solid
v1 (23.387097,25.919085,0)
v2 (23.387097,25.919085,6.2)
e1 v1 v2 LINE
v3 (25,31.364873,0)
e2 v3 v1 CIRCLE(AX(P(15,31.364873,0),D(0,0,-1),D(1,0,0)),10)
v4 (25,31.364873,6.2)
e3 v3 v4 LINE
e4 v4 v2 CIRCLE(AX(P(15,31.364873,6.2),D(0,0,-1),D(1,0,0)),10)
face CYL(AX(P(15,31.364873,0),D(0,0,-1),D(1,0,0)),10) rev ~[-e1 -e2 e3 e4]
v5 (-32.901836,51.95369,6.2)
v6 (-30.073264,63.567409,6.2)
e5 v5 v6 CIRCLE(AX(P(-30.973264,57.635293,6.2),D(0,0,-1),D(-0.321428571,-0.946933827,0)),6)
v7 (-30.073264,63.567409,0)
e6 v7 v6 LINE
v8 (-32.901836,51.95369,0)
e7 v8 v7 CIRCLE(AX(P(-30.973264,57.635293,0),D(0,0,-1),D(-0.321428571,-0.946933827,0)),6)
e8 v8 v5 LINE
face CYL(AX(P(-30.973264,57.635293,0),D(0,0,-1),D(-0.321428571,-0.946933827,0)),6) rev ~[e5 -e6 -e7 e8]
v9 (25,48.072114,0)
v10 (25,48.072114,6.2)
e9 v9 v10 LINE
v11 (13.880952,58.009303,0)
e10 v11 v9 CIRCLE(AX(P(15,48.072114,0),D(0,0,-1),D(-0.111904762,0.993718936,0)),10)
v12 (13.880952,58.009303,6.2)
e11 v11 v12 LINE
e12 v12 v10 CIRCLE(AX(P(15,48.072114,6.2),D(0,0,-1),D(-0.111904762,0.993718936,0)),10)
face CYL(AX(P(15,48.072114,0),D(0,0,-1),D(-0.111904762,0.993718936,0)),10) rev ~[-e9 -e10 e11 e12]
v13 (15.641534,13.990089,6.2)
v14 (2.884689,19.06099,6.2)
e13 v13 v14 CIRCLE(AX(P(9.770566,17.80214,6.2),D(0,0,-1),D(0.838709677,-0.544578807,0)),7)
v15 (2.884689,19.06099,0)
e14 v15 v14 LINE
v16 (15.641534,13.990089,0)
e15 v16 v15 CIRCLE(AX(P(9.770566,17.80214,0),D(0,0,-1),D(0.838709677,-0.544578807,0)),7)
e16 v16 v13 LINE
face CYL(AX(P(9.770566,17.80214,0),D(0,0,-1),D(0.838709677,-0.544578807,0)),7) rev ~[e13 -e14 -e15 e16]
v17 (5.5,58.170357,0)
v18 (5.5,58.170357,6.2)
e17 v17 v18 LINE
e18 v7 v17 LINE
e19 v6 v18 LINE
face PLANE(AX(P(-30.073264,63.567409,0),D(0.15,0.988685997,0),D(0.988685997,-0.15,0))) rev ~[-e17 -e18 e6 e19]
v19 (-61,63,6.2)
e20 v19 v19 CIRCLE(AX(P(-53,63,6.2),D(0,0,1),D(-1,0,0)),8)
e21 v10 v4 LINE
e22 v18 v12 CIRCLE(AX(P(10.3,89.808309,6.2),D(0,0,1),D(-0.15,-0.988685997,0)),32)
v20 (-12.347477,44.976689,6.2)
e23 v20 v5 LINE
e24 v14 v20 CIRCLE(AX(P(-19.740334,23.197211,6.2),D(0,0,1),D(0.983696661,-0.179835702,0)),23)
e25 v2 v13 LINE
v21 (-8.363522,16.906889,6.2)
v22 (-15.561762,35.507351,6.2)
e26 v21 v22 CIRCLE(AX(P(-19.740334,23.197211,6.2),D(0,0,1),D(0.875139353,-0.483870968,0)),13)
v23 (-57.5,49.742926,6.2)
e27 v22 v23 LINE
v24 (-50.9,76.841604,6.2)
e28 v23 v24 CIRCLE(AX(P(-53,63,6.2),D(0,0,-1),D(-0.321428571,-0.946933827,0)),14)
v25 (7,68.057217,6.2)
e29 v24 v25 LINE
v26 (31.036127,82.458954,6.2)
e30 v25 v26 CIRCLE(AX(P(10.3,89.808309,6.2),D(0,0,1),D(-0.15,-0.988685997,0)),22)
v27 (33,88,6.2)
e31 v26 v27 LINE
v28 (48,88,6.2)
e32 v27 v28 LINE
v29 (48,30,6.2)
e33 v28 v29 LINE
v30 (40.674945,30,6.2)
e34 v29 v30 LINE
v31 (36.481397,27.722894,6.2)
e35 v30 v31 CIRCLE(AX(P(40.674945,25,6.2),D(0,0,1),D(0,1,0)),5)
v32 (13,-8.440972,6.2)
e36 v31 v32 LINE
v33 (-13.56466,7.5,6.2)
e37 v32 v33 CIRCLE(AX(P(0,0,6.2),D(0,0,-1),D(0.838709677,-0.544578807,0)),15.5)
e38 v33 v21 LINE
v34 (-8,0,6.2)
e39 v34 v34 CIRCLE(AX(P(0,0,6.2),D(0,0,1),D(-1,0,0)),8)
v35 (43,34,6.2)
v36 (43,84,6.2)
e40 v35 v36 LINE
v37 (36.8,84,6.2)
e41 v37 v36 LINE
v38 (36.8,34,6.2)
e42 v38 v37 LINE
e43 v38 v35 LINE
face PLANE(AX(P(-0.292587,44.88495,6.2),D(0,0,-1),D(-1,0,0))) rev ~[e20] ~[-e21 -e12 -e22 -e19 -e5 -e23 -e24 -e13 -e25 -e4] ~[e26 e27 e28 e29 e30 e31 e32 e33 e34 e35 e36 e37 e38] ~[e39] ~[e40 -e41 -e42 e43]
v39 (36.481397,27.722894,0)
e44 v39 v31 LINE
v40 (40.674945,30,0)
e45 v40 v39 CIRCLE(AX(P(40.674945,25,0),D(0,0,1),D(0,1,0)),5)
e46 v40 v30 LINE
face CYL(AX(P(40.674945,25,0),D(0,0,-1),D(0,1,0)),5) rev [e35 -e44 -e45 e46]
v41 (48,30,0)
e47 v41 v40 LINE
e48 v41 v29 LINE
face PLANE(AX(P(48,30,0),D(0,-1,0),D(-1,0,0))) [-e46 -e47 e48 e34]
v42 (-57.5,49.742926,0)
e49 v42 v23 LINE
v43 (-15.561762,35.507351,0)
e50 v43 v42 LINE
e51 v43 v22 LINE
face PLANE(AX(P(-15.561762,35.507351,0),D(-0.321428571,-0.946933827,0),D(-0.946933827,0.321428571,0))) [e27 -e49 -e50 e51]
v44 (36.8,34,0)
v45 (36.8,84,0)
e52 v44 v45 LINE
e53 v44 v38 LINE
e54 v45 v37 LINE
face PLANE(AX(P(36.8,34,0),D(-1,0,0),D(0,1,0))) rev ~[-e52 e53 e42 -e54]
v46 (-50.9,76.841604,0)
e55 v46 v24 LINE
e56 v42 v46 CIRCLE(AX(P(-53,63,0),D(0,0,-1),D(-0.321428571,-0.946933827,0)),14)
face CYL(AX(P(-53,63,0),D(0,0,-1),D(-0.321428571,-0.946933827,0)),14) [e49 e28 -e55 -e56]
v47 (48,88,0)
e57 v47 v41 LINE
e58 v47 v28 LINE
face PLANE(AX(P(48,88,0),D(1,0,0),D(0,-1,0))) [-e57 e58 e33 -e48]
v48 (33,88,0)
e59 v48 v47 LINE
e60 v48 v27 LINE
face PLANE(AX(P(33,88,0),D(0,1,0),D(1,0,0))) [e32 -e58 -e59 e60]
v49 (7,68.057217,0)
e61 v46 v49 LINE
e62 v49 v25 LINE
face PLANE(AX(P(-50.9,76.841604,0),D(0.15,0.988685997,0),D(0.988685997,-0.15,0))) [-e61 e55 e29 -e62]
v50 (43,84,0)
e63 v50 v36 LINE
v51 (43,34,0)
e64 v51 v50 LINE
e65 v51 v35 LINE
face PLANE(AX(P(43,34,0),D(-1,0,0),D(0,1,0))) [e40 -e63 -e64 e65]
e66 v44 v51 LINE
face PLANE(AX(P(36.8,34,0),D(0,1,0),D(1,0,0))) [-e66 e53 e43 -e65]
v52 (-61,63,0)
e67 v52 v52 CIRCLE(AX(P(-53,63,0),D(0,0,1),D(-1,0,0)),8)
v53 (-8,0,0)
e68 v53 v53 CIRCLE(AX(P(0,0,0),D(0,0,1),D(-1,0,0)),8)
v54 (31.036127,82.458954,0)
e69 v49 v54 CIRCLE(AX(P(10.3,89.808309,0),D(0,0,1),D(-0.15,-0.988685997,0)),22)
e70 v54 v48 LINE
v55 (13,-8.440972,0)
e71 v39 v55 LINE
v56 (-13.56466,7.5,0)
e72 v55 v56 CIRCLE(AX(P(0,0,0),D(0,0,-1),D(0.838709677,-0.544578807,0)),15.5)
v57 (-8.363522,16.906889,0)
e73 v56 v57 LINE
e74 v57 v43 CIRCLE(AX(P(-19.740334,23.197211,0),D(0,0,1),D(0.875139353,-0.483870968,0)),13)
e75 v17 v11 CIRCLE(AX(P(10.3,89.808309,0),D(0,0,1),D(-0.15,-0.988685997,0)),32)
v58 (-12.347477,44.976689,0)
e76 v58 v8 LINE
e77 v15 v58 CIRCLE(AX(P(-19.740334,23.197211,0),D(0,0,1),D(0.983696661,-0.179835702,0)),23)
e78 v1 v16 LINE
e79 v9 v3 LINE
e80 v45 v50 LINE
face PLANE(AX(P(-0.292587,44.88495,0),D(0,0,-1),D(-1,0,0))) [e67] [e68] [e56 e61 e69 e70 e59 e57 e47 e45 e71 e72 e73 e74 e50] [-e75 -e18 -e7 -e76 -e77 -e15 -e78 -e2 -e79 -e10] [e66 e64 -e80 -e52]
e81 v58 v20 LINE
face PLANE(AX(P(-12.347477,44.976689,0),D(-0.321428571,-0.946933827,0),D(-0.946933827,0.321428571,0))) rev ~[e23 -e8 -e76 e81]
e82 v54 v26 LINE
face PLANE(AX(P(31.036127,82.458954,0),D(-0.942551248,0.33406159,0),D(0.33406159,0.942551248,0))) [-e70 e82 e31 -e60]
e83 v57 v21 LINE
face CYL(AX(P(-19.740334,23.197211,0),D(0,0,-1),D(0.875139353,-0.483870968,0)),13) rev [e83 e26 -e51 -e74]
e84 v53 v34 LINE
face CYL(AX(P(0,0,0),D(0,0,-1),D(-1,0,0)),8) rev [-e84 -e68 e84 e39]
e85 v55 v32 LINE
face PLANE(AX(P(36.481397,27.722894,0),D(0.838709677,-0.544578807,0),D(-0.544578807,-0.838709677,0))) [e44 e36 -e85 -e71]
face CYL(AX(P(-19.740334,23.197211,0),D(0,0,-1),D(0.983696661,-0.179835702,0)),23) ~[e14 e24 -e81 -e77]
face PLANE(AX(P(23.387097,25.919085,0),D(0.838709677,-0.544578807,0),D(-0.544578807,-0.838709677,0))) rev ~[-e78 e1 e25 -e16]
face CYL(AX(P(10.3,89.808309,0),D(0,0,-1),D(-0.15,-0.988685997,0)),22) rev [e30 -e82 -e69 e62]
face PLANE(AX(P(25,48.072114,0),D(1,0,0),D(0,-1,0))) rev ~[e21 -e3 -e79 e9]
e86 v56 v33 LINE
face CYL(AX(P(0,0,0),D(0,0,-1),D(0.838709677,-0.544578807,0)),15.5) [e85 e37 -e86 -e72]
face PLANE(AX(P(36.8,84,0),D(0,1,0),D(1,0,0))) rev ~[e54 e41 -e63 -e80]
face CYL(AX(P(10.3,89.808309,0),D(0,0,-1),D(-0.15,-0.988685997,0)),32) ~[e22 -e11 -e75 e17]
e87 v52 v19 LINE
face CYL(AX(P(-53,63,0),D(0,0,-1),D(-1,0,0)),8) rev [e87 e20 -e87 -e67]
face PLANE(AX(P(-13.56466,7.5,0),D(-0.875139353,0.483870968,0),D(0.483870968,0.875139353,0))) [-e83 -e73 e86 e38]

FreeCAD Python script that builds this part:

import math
import FreeCAD as App
import Part
import Sketcher
Q = App.Units.Quantity

doc = App.newDocument("Part")
params = doc.addObject("Spreadsheet::Sheet", "Params")
for row, (alias, value) in enumerate([
    ("sketch1_diameter", "16 mm"),
    ("sketch1_radius", "22 mm"),
    ("sketch1_radius2", "14 mm"),
    ("sketch1_radius3", "13 mm"),
    ("sketch1_radius4", "5 mm"),
    ("pad1_length", "6.2 mm"),
], start=1):
    params.set(f"A{row}", alias)
    params.set(f"B{row}", "=" + value)
    params.setAlias(f"B{row}", alias)

body = doc.addObject("PartDesign::Body", "Body")

sketch1 = doc.addObject("Sketcher::SketchObject", "Sketch")
body.addObject(sketch1)
sketch1.AttachmentSupport = (doc.XY_Plane, [""])
sketch1.MapMode = "FlatFace"
sketch1.addGeometry([
    Part.LineSegment(App.Vector(33, 88, 0), App.Vector(31, 82.5, 0)),
    Part.ArcOfCircle(Part.Circle(App.Vector(10.3, 89.8, 0), App.Vector(0, 0, 1), 22), math.radians(-99), math.radians(-20)),
    Part.LineSegment(App.Vector(7, 68.1, 0), App.Vector(-50.9, 76.8, 0)),
    Part.ArcOfCircle(Part.Circle(App.Vector(-53, 63, 0), App.Vector(0, 0, 1), 14), math.radians(81), math.radians(251)),
    Part.LineSegment(App.Vector(-57.5, 49.7, 0), App.Vector(-15.6, 35.5, 0)),
    Part.ArcOfCircle(Part.Circle(App.Vector(-19.7, 23.2, 0), App.Vector(0, 0, 1), 13), math.radians(-29), math.radians(71)),
    Part.LineSegment(App.Vector(-8.4, 16.9, 0), App.Vector(-13.6, 7.5, 0)),
    Part.ArcOfCircle(Part.Circle(App.Vector(0, 0, 0), App.Vector(0, 0, 1), 15.5), math.radians(151), math.radians(327)),
    Part.LineSegment(App.Vector(13, -8.4, 0), App.Vector(36.5, 27.7, 0)),
    Part.ArcOfCircle(Part.Circle(App.Vector(40.7, 25, 0), App.Vector(0, 0, 1), 5), math.radians(90), math.radians(147)),
    Part.LineSegment(App.Vector(40.7, 30, 0), App.Vector(48, 30, 0)),
    Part.LineSegment(App.Vector(48, 30, 0), App.Vector(48, 88, 0)),
    Part.LineSegment(App.Vector(48, 88, 0), App.Vector(33, 88, 0)),
    Part.Circle(App.Vector(0, 0, 0), App.Vector(0, 0, 1), 8),
    Part.LineSegment(App.Vector(-30.1, 63.6, 0), App.Vector(5.5, 58.2, 0)),
    Part.ArcOfCircle(Part.Circle(App.Vector(10.3, 89.8, 0), App.Vector(0, 0, 1), 32), math.radians(-98.63), math.radians(-83.57)),
    Part.ArcOfCircle(Part.Circle(App.Vector(15, 48.1, 0), App.Vector(0, 0, 1), 10), math.radians(0), math.radians(96)),
    Part.LineSegment(App.Vector(25, 48.1, 0), App.Vector(25, 31.4, 0)),
    Part.ArcOfCircle(Part.Circle(App.Vector(15, 31.4, 0), App.Vector(0, 0, 1), 10), math.radians(-33), math.radians(0)),
    Part.LineSegment(App.Vector(23.4, 25.9, 0), App.Vector(15.6, 14, 0)),
    Part.ArcOfCircle(Part.Circle(App.Vector(9.8, 17.8, 0), App.Vector(0, 0, 1), 7), math.radians(170), math.radians(327)),
    Part.ArcOfCircle(Part.Circle(App.Vector(-19.7, 23.2, 0), App.Vector(0, 0, 1), 23), math.radians(-10), math.radians(71)),
    Part.LineSegment(App.Vector(-12.3, 45, 0), App.Vector(-32.9, 52, 0)),
    Part.ArcOfCircle(Part.Circle(App.Vector(-31, 57.6, 0), App.Vector(0, 0, 1), 6), math.radians(81), math.radians(251)),
    Part.LineSegment(App.Vector(36.8, 34, 0), App.Vector(36.8, 84, 0)),
    Part.LineSegment(App.Vector(36.8, 84, 0), App.Vector(43, 84, 0)),
    Part.LineSegment(App.Vector(43, 84, 0), App.Vector(43, 34, 0)),
    Part.LineSegment(App.Vector(43, 34, 0), App.Vector(36.8, 34, 0)),
    Part.Circle(App.Vector(-53, 63, 0), App.Vector(0, 0, 1), 8),
], False)
sketch1.addConstraint([
    Sketcher.Constraint("Tangent", 0, 2, 1, 2),
    Sketcher.Constraint("Tangent", 1, 1, 2, 1),
    Sketcher.Constraint("Tangent", 2, 2, 3, 1),
    Sketcher.Constraint("Tangent", 3, 2, 4, 1),
    Sketcher.Constraint("Tangent", 4, 2, 5, 2),
    Sketcher.Constraint("Tangent", 5, 1, 6, 1),
    Sketcher.Constraint("Tangent", 6, 2, 7, 1),
    Sketcher.Constraint("Tangent", 7, 2, 8, 1),
    Sketcher.Constraint("Tangent", 8, 2, 9, 2),
    Sketcher.Constraint("Tangent", 9, 1, 10, 1),
    Sketcher.Constraint("Coincident", 10, 2, 11, 1),
    Sketcher.Constraint("Coincident", 11, 2, 12, 1),
    Sketcher.Constraint("Coincident", 12, 2, 0, 1),
    Sketcher.Constraint("Tangent", 14, 2, 15, 1),
    Sketcher.Constraint("Tangent", 15, 2, 16, 2),
    Sketcher.Constraint("Tangent", 16, 1, 17, 1),
    Sketcher.Constraint("Tangent", 17, 2, 18, 2),
    Sketcher.Constraint("Tangent", 18, 1, 19, 1),
    Sketcher.Constraint("Tangent", 19, 2, 20, 2),
    Sketcher.Constraint("Tangent", 20, 1, 21, 1),
    Sketcher.Constraint("Tangent", 21, 2, 22, 1),
    Sketcher.Constraint("Tangent", 22, 2, 23, 2),
    Sketcher.Constraint("Tangent", 23, 1, 14, 1),
    Sketcher.Constraint("Coincident", 24, 2, 25, 1),
    Sketcher.Constraint("Coincident", 25, 2, 26, 1),
    Sketcher.Constraint("Coincident", 26, 2, 27, 1),
    Sketcher.Constraint("Coincident", 27, 2, 24, 1),
    Sketcher.Constraint("Horizontal", 10),
    Sketcher.Constraint("Vertical", 11),
    Sketcher.Constraint("Horizontal", 12),
    Sketcher.Constraint("Vertical", 17),
    Sketcher.Constraint("Vertical", 24),
    Sketcher.Constraint("Horizontal", 25),
    Sketcher.Constraint("Vertical", 26),
    Sketcher.Constraint("Horizontal", 27),
    Sketcher.Constraint("Coincident", 7, 3, -1, 1),
    Sketcher.Constraint("Coincident", 13, 3, -1, 1),
    Sketcher.Constraint("Coincident", 15, 3, 1, 3),
    Sketcher.Constraint("Coincident", 21, 3, 5, 3),
    Sketcher.Constraint("Coincident", 28, 3, 3, 3),
    Sketcher.Constraint("Equal", 16, 18),
    Sketcher.Constraint("Equal", 13, 28),
    Sketcher.Constraint("Parallel", 2, 14),
    Sketcher.Constraint("Parallel", 8, 19),
    Sketcher.Constraint("Parallel", 4, 22),
    Sketcher.Constraint("Diameter", 13, Q("16 mm")),
    Sketcher.Constraint("Radius", 1, Q("22 mm")),
    Sketcher.Constraint("Radius", 3, Q("14 mm")),
    Sketcher.Constraint("Radius", 5, Q("13 mm")),
    Sketcher.Constraint("Radius", 9, Q("5 mm")),
    Sketcher.Constraint("Radius", 15, Q("32 mm")),
    Sketcher.Constraint("Radius", 16, Q("10 mm")),
    Sketcher.Constraint("Radius", 20, Q("7 mm")),
    Sketcher.Constraint("Radius", 21, Q("23 mm")),
    Sketcher.Constraint("Radius", 23, Q("6 mm")),
    Sketcher.Constraint("Radius", 7, Q("15.5 mm")),
    Sketcher.Constraint("DistanceX", 12, 2, 12, 1, Q("15 mm")),
    Sketcher.Constraint("DistanceY", 11, 1, 11, 2, Q("58 mm")),
    Sketcher.Constraint("DistanceY", 24, 1, 24, 2, Q("50 mm")),
    Sketcher.Constraint("DistanceX", 25, 1, 25, 2, Q("6.2 mm")),
    Sketcher.Constraint("DistanceX", 3, 3, -1, 1, Q("53 mm")),
    Sketcher.Constraint("DistanceY", -1, 1, 3, 3, Q("63 mm")),
    Sketcher.Constraint("DistanceY", -1, 1, 9, 3, Q("25 mm")),
    Sketcher.Constraint("DistanceX", -1, 1, 16, 3, Q("15 mm")),
    Sketcher.Constraint("DistanceX", -1, 1, 1, 1, Q("7 mm")),
    Sketcher.Constraint("DistanceX", -1, 1, 7, 2, Q("13 mm")),
    Sketcher.Constraint("DistanceX", -1, 1, 10, 2, Q("48 mm")),
    Sketcher.Constraint("DistanceY", -1, 1, 24, 2, Q("84 mm")),
    Sketcher.Constraint("DistanceX", -1, 1, 25, 2, Q("43 mm")),
    Sketcher.Constraint("DistanceX", -1, 1, 1, 3, Q("10.3 mm")),
    Sketcher.Constraint("DistanceX", 3, 2, -1, 1, Q("57.5 mm")),
    Sketcher.Constraint("DistanceY", -1, 1, 6, 2, Q("7.5 mm")),
    Sketcher.Constraint("DistanceY", 17, 2, 17, 1, Q("16.707241 mm")),
])
sketch1.setExpression("Constraints[45]", "Params.sketch1_diameter")
sketch1.setExpression("Constraints[46]", "Params.sketch1_radius")
sketch1.setExpression("Constraints[47]", "Params.sketch1_radius2")
sketch1.setExpression("Constraints[48]", "Params.sketch1_radius3")
sketch1.setExpression("Constraints[49]", "Params.sketch1_radius4")
pad1 = doc.addObject("PartDesign::Pad", "Pad")
body.addObject(pad1)
pad1.Profile = sketch1
pad1.setExpression("Length", "Params.pad1_length")

doc.recompute()
